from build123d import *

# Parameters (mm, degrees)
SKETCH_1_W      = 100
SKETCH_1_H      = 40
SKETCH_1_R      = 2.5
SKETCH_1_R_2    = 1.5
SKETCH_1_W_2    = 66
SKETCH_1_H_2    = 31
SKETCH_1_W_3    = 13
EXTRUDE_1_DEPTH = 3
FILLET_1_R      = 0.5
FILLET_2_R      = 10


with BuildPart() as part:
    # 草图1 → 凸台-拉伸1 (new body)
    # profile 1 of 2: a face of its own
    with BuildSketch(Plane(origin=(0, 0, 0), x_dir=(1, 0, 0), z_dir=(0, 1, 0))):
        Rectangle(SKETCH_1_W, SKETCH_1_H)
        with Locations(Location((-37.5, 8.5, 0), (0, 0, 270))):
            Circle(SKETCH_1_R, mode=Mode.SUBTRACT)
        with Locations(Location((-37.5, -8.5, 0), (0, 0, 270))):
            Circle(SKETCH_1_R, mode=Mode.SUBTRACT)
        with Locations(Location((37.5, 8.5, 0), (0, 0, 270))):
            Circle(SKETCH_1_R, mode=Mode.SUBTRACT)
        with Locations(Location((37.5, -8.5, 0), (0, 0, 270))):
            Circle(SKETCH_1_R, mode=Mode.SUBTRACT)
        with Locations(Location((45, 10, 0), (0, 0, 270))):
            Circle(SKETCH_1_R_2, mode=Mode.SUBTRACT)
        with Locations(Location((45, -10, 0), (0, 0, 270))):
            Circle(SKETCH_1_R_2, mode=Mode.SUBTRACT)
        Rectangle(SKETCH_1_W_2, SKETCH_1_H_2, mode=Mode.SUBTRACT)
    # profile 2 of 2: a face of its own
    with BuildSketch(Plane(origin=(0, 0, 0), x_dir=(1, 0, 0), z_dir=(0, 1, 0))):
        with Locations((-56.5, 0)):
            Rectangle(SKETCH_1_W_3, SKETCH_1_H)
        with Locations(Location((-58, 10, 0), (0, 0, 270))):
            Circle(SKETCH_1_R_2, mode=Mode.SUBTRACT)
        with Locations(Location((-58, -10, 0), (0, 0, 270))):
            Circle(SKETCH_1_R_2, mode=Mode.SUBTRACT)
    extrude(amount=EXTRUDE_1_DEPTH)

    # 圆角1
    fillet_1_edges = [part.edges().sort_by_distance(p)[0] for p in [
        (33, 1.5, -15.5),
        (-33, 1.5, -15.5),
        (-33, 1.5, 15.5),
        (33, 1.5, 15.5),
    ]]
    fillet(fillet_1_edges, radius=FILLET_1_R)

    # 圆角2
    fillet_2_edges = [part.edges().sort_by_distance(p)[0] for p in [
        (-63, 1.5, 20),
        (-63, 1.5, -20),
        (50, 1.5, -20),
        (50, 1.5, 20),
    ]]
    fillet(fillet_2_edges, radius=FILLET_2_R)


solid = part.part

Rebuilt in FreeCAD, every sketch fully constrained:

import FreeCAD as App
import Part
import Sketcher

V = App.Vector
Q = App.Units.Quantity


def edges_at(feature, points):
    """Names of the edges that pass closest to the given points."""
    edges = feature.Shape.Edges
    near = lambda p: min(range(len(edges)), key=lambda i: edges[i].distToShape(Part.Vertex(*p))[0])
    return sorted({f"Edge{near(p) + 1}" for p in points})

doc = App.newDocument("Part")
params = doc.addObject("Spreadsheet::Sheet", "Params")
for row, (alias, value) in enumerate([
    ("sketch1_diameter", "5 mm"),
    ("sketch1_diameter2", "3 mm"),
    ("sketch1_width", "113 mm"),
    ("sketch1_width2", "66 mm"),
    ("sketch1_height", "40 mm"),
    ("pad1_length", "3 mm"),
    ("fillet_radius", "0.5 mm"),
    ("fillet2_radius", "10 mm"),
], start=1):
    params.set(f"A{row}", alias)
    params.set(f"B{row}", "=" + value)
    params.setAlias(f"B{row}", alias)

body = doc.addObject("PartDesign::Body", "Body")

# Sketch on XZ plane
sketch1 = body.newObject("Sketcher::SketchObject", "Sketch")
sketch1.AttachmentSupport = (doc.getObject("XZ_Plane"), [""])
sketch1.MapMode = "FlatFace"
sketch1.addGeometry(Part.LineSegment(V(50, 20, 0), V(50, -20, 0)), False)
sketch1.addGeometry(Part.LineSegment(V(50, -20, 0), V(-63, -20, 0)), False)
sketch1.addGeometry(Part.LineSegment(V(-63, -20, 0), V(-63, 20, 0)), False)
sketch1.addGeometry(Part.LineSegment(V(-63, 20, 0), V(50, 20, 0)), False)
sketch1.addGeometry(Part.Circle(V(-37.5, 8.5, 0), V(0, 0, 1), 2.5), False)
sketch1.addGeometry(Part.Circle(V(45, 10, 0), V(0, 0, 1), 1.5), False)
sketch1.addGeometry(Part.Circle(V(37.5, 8.5, 0), V(0, 0, 1), 2.5), False)
sketch1.addGeometry(Part.LineSegment(V(33, 15.5, 0), V(-33, 15.5, 0)), False)
sketch1.addGeometry(Part.LineSegment(V(-33, 15.5, 0), V(-33, -15.5, 0)), False)
sketch1.addGeometry(Part.LineSegment(V(-33, -15.5, 0), V(33, -15.5, 0)), False)
sketch1.addGeometry(Part.LineSegment(V(33, -15.5, 0), V(33, 15.5, 0)), False)
sketch1.addGeometry(Part.Circle(V(-37.5, -8.5, 0), V(0, 0, 1), 2.5), False)
sketch1.addGeometry(Part.Circle(V(37.5, -8.5, 0), V(0, 0, 1), 2.5), False)
sketch1.addGeometry(Part.Circle(V(45, -10, 0), V(0, 0, 1), 1.5), False)
sketch1.addGeometry(Part.Circle(V(-58, -10, 0), V(0, 0, 1), 1.5), False)
sketch1.addGeometry(Part.Circle(V(-58, 10, 0), V(0, 0, 1), 1.5), False)
sketch1.addConstraint(Sketcher.Constraint("Coincident", 0, 2, 1, 1))
sketch1.addConstraint(Sketcher.Constraint("Coincident", 1, 2, 2, 1))
sketch1.addConstraint(Sketcher.Constraint("Coincident", 2, 2, 3, 1))
sketch1.addConstraint(Sketcher.Constraint("Coincident", 3, 2, 0, 1))
sketch1.addConstraint(Sketcher.Constraint("Coincident", 7, 2, 8, 1))
sketch1.addConstraint(Sketcher.Constraint("Coincident", 8, 2, 9, 1))
sketch1.addConstraint(Sketcher.Constraint("Coincident", 9, 2, 10, 1))
sketch1.addConstraint(Sketcher.Constraint("Coincident", 10, 2, 7, 1))
sketch1.addConstraint(Sketcher.Constraint("Vertical", 0))
sketch1.addConstraint(Sketcher.Constraint("Horizontal", 1))
sketch1.addConstraint(Sketcher.Constraint("Vertical", 2))
sketch1.addConstraint(Sketcher.Constraint("Horizontal", 3))
sketch1.addConstraint(Sketcher.Constraint("Horizontal", 7))
sketch1.addConstraint(Sketcher.Constraint("Vertical", 8))
sketch1.addConstraint(Sketcher.Constraint("Horizontal", 9))
sketch1.addConstraint(Sketcher.Constraint("Vertical", 10))
sketch1.addConstraint(Sketcher.Constraint("Equal", 4, 6))
sketch1.addConstraint(Sketcher.Constraint("Equal", 6, 11))
sketch1.addConstraint(Sketcher.Constraint("Equal", 11, 12))
sketch1.addConstraint(Sketcher.Constraint("Equal", 5, 13))
sketch1.addConstraint(Sketcher.Constraint("Equal", 13, 14))
sketch1.addConstraint(Sketcher.Constraint("Equal", 14, 15))
sketch1.addConstraint(Sketcher.Constraint("Symmetric", 6, 3, 11, 3, -1, 1))
sketch1.addConstraint(Sketcher.Constraint("Symmetric", 4, 3, 12, 3, -1, 1))
sketch1.addConstraint(Sketcher.Constraint("Symmetric", 7, 2, 9, 2, -1, 1))
sketch1.addConstraint(Sketcher.Constraint("Symmetric", 4, 3, 6, 3, -2))
sketch1.addConstraint(Sketcher.Constraint("Symmetric", 5, 3, 13, 3, -1))
sketch1.addConstraint(Sketcher.Constraint("Symmetric", 14, 3, 15, 3, -1))
sketch1.addConstraint(Sketcher.Constraint("Horizontal", 13, 3, 14, 3))
sketch1.addConstraint(Sketcher.Constraint("Diameter", 4, Q("5 mm")))
sketch1.addConstraint(Sketcher.Constraint("Diameter", 5, Q("3 mm")))
sketch1.addConstraint(Sketcher.Constraint("DistanceX", 1, 2, 1, 1, Q("113 mm")))
sketch1.addConstraint(Sketcher.Constraint("DistanceX", 7, 2, 7, 1, Q("66 mm")))
sketch1.addConstraint(Sketcher.Constraint("DistanceY", 0, 2, 0, 1, Q("40 mm")))
sketch1.addConstraint(Sketcher.Constraint("DistanceY", 8, 2, 8, 1, Q("31 mm")))
sketch1.addConstraint(Sketcher.Constraint("DistanceX", -1, 1, 5, 3, Q("45 mm")))
sketch1.addConstraint(Sketcher.Constraint("DistanceY", -1, 1, 5, 3, Q("10 mm")))
sketch1.addConstraint(Sketcher.Constraint("DistanceX", 14, 3, -1, 1, Q("58 mm")))
sketch1.addConstraint(Sketcher.Constraint("DistanceX", -1, 1, 0, 2, Q("50 mm")))
sketch1.addConstraint(Sketcher.Constraint("DistanceY", 0, 2, -1, 1, Q("20 mm")))
sketch1.addConstraint(Sketcher.Constraint("DistanceX", 4, 3, 6, 3, Q("75 mm")))
sketch1.addConstraint(Sketcher.Constraint("DistanceY", 11, 3, 4, 3, Q("17 mm")))
sketch1.setExpression("Constraints[29]", "Params.sketch1_diameter")
sketch1.setExpression("Constraints[30]", "Params.sketch1_diameter2")
sketch1.setExpression("Constraints[31]", "Params.sketch1_width")
sketch1.setExpression("Constraints[32]", "Params.sketch1_width2")
sketch1.setExpression("Constraints[33]", "Params.sketch1_height")
pad1 = body.newObject("PartDesign::Pad", "Pad")
pad1.Profile = sketch1
pad1.setExpression("Length", "Params.pad1_length")
pad1.Reversed = True
doc.recompute()

fillet = body.newObject("PartDesign::Fillet", "Fillet")
fillet.Base = (pad1, edges_at(pad1, [
    (33, 1.5, -15.5),
    (-33, 1.5, -15.5),
    (-33, 1.5, 15.5),
    (33, 1.5, 15.5),
]))
fillet.setExpression("Radius", "Params.fillet_radius")
doc.recompute()

fillet2 = body.newObject("PartDesign::Fillet", "Fillet001")
fillet2.Base = (fillet, edges_at(fillet, [
    (-63, 1.5, 20),
    (-63, 1.5, -20),
    (50, 1.5, -20),
    (50, 1.5, 20),
]))
fillet2.setExpression("Radius", "Params.fillet2_radius")

doc.recompute()
